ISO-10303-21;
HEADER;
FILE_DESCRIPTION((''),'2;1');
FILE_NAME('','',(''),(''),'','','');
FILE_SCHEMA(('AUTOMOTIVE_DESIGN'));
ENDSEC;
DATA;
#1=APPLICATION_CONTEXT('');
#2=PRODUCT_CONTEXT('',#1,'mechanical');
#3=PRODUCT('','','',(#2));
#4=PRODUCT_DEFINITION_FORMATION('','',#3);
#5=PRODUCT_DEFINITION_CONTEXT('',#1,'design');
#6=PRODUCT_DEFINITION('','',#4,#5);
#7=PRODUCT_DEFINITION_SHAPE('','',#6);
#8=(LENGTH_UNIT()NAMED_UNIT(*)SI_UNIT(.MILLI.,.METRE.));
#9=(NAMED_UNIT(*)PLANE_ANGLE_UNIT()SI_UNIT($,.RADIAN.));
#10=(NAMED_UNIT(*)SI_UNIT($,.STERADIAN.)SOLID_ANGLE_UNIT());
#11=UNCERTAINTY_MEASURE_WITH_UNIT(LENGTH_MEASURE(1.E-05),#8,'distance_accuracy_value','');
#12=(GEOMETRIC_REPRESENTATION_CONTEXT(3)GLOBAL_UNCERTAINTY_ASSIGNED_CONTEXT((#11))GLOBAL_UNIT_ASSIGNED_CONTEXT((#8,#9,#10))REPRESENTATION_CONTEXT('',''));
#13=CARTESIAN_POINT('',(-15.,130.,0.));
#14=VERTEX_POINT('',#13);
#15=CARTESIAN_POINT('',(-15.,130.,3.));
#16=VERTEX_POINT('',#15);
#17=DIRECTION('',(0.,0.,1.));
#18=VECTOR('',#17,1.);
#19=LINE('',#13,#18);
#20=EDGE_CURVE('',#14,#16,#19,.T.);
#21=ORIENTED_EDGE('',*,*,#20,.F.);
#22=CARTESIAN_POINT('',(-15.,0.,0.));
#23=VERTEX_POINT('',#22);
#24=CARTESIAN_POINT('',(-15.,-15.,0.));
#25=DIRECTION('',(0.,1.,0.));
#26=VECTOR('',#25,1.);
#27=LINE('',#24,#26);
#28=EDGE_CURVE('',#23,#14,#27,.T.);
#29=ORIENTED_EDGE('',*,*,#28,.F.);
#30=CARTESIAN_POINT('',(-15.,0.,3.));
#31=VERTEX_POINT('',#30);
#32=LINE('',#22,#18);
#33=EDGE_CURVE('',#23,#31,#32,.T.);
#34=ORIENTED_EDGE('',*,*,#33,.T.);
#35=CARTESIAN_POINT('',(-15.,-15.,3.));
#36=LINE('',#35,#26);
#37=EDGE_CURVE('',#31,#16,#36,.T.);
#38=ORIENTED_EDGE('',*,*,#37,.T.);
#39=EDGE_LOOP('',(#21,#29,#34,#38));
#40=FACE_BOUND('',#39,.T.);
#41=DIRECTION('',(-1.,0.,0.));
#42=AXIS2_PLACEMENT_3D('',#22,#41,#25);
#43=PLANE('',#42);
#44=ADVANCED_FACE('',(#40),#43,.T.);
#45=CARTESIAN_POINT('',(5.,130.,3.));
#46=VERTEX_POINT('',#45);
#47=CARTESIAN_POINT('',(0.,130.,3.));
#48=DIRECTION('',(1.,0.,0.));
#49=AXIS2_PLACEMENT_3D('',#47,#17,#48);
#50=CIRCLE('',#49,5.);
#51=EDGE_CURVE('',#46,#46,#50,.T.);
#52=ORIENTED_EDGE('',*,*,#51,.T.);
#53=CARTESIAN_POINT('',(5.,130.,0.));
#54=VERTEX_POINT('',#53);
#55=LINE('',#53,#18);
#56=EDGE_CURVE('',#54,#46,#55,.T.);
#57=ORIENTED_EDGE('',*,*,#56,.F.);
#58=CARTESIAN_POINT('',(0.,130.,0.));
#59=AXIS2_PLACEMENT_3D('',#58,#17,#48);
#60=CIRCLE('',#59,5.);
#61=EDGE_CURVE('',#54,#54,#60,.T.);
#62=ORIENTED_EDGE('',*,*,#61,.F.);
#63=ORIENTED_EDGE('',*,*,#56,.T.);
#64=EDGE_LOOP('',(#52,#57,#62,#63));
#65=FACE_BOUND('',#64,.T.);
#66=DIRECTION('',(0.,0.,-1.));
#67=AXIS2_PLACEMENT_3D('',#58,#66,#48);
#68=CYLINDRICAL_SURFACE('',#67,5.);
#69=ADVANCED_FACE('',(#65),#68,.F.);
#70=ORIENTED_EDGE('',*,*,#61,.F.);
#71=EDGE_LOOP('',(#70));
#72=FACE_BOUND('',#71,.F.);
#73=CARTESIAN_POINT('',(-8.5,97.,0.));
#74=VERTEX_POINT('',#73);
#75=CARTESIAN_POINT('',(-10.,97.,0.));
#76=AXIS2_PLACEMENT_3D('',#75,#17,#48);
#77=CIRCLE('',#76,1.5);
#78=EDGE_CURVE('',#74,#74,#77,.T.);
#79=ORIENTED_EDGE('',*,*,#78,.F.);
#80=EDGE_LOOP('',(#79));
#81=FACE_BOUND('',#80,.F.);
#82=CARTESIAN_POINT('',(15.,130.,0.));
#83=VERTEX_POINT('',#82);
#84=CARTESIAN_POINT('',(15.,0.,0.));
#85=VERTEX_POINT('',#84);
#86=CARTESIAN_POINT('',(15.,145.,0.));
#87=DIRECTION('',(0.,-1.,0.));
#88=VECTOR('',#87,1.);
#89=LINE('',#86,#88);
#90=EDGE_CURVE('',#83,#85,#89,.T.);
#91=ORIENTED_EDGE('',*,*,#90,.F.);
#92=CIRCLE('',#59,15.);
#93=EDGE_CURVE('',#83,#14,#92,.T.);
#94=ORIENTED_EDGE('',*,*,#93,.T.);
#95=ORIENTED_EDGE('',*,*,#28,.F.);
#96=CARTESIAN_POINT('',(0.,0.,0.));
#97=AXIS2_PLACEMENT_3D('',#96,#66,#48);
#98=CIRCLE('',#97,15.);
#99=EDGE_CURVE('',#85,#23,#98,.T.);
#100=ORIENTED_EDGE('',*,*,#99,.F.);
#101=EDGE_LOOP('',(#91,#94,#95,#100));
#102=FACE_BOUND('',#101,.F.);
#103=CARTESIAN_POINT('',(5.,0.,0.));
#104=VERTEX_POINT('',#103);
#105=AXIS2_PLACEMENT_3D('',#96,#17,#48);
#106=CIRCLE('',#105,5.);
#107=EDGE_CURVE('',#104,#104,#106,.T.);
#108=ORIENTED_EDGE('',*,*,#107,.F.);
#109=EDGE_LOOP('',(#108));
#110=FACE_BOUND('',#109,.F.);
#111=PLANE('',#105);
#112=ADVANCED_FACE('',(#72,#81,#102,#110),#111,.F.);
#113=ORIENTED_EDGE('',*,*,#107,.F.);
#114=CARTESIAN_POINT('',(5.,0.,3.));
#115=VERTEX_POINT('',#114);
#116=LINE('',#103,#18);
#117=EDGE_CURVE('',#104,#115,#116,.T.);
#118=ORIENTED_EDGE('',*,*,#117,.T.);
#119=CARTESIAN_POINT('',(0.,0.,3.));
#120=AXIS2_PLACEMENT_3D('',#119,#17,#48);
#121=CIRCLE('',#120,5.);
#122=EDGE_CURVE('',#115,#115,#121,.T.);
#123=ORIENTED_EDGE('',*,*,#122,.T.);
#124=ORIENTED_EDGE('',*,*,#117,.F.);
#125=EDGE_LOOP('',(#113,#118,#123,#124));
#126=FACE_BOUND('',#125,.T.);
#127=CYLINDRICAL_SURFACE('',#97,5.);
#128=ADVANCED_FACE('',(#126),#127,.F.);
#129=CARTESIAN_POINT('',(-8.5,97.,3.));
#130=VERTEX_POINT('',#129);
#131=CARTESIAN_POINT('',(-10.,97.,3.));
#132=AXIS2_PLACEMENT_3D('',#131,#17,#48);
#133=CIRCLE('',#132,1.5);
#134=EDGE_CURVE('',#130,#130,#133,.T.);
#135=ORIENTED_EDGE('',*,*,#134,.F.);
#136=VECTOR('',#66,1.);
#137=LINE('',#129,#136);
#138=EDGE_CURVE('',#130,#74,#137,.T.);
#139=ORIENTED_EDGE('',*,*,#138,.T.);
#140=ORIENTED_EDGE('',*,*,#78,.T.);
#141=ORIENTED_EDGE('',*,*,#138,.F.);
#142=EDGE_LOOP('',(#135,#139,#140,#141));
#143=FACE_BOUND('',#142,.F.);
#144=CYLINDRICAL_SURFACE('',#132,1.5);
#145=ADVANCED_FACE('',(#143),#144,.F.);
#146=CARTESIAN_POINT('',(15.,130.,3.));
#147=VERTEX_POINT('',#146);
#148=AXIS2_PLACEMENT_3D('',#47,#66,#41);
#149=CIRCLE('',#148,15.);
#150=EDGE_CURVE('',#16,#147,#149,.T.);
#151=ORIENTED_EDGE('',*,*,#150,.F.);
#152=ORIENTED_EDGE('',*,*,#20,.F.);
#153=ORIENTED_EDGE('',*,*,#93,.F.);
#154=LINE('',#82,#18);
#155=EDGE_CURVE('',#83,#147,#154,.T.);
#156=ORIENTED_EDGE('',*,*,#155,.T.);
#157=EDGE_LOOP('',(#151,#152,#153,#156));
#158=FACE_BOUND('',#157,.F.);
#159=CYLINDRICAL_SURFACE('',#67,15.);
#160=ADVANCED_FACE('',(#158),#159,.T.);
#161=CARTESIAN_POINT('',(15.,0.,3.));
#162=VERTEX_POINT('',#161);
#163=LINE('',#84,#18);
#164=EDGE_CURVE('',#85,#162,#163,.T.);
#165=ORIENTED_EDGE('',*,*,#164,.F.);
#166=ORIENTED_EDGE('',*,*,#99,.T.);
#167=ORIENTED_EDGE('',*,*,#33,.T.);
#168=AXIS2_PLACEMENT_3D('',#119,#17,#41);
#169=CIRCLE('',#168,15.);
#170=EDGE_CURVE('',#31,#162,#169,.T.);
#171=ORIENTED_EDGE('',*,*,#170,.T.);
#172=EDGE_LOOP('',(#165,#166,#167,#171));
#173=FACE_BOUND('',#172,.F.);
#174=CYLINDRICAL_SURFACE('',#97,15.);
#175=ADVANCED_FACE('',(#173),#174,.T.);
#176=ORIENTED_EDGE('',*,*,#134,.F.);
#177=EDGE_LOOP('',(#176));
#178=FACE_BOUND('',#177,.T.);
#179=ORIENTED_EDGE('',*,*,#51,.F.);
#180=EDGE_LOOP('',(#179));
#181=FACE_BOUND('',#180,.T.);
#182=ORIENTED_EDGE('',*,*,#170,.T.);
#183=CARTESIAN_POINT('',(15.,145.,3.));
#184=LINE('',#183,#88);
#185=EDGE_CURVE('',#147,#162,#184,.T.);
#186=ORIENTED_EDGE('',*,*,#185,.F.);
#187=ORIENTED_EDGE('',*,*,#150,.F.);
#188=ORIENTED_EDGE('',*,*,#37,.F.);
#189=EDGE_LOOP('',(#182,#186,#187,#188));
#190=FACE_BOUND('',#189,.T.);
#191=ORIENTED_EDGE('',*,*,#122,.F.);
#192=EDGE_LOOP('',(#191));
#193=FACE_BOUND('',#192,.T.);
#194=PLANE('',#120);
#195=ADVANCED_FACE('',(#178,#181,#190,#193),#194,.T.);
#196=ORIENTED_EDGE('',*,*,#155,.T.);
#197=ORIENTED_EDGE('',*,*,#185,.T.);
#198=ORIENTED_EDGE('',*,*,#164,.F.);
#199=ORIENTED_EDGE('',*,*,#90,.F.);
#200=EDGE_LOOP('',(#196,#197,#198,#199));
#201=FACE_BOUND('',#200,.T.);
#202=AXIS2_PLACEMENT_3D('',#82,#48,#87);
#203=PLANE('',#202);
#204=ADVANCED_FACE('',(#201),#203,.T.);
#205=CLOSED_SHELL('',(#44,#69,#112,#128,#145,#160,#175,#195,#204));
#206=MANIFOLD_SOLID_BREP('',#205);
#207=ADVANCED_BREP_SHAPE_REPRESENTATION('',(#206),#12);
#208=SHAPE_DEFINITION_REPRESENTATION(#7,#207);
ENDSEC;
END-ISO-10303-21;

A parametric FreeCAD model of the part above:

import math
import FreeCAD as App
import Part
import Sketcher

V = App.Vector

doc = App.newDocument("Part")
body = doc.addObject("PartDesign::Body", "Body")

sketch1 = doc.addObject("Sketcher::SketchObject", "Sketch")
body.addObject(sketch1)
sketch1.AttachmentSupport = (doc.XY_Plane, [""])
sketch1.MapMode = "FlatFace"
sketch1.addGeometry([
    Part.ArcOfCircle(Part.Circle(V(0, 130, 0), V(0, 0, 1), 15), math.radians(0), math.radians(180)),
    Part.LineSegment(V(-15, 130, 0), V(-15, 0, 0)),
    Part.ArcOfCircle(Part.Circle(V(0, 0, 0), V(0, 0, 1), 15), math.radians(180), math.radians(360)),
    Part.LineSegment(V(15, 0, 0), V(15, 130, 0)),
    Part.Circle(V(0, 130, 0), V(0, 0, 1), 5),
    Part.Circle(V(0, 0, 0), V(0, 0, 1), 5),
], False)
sketch1.addConstraint([
    Sketcher.Constraint("Tangent", 0, 2, 1, 1),
    Sketcher.Constraint("Tangent", 1, 2, 2, 1),
    Sketcher.Constraint("Tangent", 2, 2, 3, 1),
    Sketcher.Constraint("Tangent", 3, 2, 0, 1),
    Sketcher.Constraint("Vertical", 1),
    Sketcher.Constraint("Vertical", 3),
    Sketcher.Constraint("Coincident", 2, 3, -1, 1),
    Sketcher.Constraint("Coincident", 5, 3, -1, 1),
    Sketcher.Constraint("Coincident", 4, 3, 0, 3),
    Sketcher.Constraint("Equal", 4, 5),
    Sketcher.Constraint("Diameter", 4, 10.0),
    Sketcher.Constraint("Radius", 0, 15.0),
    Sketcher.Constraint("DistanceY", 1, 2, 1, 1, 130.0),
])
pad1 = doc.addObject("PartDesign::Pad", "Pad")
body.addObject(pad1)
pad1.Profile = sketch1
pad1.Length = 3

sketch2 = doc.addObject("Sketcher::SketchObject", "Sketch001")
body.addObject(sketch2)
sketch2.AttachmentSupport = (doc.XY_Plane, [""])
sketch2.MapMode = "FlatFace"
sketch2.AttachmentOffset = App.Placement(V(0, 0, 3), App.Rotation())
sketch2.addGeometry(Part.Circle(V(-10, 97, 0), V(0, 0, 1), 1.5), False)
sketch2.addConstraint([
    Sketcher.Constraint("Diameter", 0, 3.0),
    Sketcher.Constraint("DistanceX", 0, 3, -1, 1, 10.0),
    Sketcher.Constraint("DistanceY", -1, 1, 0, 3, 97.0),
])
pocket1 = doc.addObject("PartDesign::Pocket", "Pocket")
body.addObject(pocket1)
pocket1.Profile = sketch2
pocket1.Length = 3

doc.recompute()
